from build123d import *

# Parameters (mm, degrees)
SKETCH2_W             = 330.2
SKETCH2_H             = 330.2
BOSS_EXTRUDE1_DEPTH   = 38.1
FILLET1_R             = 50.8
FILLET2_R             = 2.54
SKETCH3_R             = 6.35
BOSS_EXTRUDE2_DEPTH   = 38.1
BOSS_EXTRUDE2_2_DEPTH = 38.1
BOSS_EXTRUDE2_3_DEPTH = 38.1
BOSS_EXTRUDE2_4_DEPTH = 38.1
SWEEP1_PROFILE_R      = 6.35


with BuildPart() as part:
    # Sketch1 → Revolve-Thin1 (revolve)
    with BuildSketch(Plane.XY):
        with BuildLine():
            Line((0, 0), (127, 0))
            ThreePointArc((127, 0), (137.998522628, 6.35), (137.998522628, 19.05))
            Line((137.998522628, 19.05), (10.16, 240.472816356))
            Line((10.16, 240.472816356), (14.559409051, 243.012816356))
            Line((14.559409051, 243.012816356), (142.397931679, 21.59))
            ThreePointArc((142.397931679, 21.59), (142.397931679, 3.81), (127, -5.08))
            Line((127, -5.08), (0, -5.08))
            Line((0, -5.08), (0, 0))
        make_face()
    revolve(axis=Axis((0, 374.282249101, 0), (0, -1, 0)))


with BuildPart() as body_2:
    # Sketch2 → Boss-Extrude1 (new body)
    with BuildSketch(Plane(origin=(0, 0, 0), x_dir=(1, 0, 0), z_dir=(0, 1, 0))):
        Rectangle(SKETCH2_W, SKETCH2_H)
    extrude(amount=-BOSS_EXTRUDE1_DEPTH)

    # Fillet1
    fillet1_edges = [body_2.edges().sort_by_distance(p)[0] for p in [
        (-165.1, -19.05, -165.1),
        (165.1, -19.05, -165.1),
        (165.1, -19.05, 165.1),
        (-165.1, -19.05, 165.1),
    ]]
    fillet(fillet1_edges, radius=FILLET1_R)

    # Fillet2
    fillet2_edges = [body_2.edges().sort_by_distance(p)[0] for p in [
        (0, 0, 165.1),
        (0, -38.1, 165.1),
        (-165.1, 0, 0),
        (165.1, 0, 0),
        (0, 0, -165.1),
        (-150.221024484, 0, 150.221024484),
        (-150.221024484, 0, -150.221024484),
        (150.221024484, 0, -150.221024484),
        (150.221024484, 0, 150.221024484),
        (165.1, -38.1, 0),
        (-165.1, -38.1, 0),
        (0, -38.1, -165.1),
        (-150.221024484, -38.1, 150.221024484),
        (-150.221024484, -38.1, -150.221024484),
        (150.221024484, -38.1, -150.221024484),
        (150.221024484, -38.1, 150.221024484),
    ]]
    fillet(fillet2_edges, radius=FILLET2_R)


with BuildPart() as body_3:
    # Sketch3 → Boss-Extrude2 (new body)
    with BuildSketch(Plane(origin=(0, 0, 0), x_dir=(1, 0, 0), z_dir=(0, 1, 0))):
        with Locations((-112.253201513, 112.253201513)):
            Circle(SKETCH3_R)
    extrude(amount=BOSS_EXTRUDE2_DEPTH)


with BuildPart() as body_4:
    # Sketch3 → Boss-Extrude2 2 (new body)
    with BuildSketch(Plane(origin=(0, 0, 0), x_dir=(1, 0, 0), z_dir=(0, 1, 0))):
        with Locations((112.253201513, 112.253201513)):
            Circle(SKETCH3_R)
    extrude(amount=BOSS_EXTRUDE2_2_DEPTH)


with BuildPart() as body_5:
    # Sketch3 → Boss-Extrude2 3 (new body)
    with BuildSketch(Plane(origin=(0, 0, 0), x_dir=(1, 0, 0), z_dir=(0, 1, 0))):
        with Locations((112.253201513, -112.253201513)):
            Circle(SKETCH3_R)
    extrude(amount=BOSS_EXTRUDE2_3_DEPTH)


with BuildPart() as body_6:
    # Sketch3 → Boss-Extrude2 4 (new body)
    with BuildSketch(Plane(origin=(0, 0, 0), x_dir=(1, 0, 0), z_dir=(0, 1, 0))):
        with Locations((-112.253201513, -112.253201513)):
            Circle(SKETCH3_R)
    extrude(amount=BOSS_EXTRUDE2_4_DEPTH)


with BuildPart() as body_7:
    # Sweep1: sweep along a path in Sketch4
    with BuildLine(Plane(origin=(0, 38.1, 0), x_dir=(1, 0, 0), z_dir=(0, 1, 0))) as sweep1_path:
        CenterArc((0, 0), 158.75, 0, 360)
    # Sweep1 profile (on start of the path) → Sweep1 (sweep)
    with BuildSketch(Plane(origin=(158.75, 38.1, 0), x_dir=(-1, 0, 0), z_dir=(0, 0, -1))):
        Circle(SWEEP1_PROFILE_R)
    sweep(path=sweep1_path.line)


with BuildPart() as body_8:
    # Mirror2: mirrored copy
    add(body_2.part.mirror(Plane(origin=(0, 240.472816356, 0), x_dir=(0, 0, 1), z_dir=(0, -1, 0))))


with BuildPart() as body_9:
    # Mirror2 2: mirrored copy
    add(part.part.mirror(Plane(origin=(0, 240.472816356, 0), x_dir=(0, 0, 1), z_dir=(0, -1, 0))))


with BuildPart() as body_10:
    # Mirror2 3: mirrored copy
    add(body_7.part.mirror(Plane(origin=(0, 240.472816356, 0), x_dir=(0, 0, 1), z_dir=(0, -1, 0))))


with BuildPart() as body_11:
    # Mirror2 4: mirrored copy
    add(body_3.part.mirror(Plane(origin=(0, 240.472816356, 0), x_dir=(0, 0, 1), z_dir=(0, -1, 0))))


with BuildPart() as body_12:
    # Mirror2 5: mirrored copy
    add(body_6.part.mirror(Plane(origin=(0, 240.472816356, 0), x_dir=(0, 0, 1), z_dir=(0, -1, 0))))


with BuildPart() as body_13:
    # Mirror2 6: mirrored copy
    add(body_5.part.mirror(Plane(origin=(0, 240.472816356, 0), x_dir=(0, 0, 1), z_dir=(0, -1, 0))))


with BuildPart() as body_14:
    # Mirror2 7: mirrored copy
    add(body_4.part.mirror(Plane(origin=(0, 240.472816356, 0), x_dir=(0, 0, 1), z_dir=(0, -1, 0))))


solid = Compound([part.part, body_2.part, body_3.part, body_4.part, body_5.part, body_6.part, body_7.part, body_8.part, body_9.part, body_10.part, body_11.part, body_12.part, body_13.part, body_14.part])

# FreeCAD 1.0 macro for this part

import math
import FreeCAD as App
import Part
import Sketcher
from FreeCAD import Vector
Q = App.Units.Quantity


def edges_at(feature, points):
    """Names of the edges that pass closest to the given points."""
    edges = feature.Shape.Edges
    near = lambda p: min(range(len(edges)), key=lambda i: edges[i].distToShape(Part.Vertex(*p))[0])
    return sorted({f"Edge{near(p) + 1}" for p in points})

doc = App.newDocument("Part")
body = doc.addObject("PartDesign::Body", "Body")

# Sketch on XY plane
sketch1 = doc.addObject("Sketcher::SketchObject", "Sketch")
body.addObject(sketch1)
sketch1.AttachmentSupport = (doc.XY_Plane, [""])
sketch1.MapMode = "FlatFace"
sketch1.addGeometry(Part.LineSegment(Vector(127, 0, 0), Vector(0, 0, 0)), False)
sketch1.addGeometry(Part.LineSegment(Vector(0, 0, 0), Vector(0, -5.08, 0)), False)
sketch1.addGeometry(Part.LineSegment(Vector(0, -5.08, 0), Vector(127, -5.08, 0)), False)
sketch1.addGeometry(Part.ArcOfCircle(Part.Circle(Vector(127, 12.7, 0), Vector(0, 0, 1), 17.78), math.radians(-90), math.radians(30)), False)
sketch1.addGeometry(Part.LineSegment(Vector(142.397932, 21.59, 0), Vector(14.559409, 243.012816, 0)), False)
sketch1.addGeometry(Part.LineSegment(Vector(14.559409, 243.012816, 0), Vector(10.16, 240.472816, 0)), False)
sketch1.addGeometry(Part.LineSegment(Vector(10.16, 240.472816, 0), Vector(137.998523, 19.05, 0)), False)
sketch1.addGeometry(Part.ArcOfCircle(Part.Circle(Vector(127, 12.7, 0), Vector(0, 0, 1), 12.7), math.radians(-90), math.radians(30)), False)
sketch1.addConstraint(Sketcher.Constraint("Coincident", 0, 2, 1, 1))
sketch1.addConstraint(Sketcher.Constraint("Coincident", 1, 2, 2, 1))
sketch1.addConstraint(Sketcher.Constraint("Tangent", 2, 2, 3, 1))
sketch1.addConstraint(Sketcher.Constraint("Tangent", 3, 2, 4, 1))
sketch1.addConstraint(Sketcher.Constraint("Coincident", 4, 2, 5, 1))
sketch1.addConstraint(Sketcher.Constraint("Coincident", 5, 2, 6, 1))
sketch1.addConstraint(Sketcher.Constraint("Tangent", 6, 2, 7, 2))
sketch1.addConstraint(Sketcher.Constraint("Tangent", 7, 1, 0, 1))
sketch1.addConstraint(Sketcher.Constraint("Horizontal", 0))
sketch1.addConstraint(Sketcher.Constraint("Vertical", 1))
sketch1.addConstraint(Sketcher.Constraint("Horizontal", 2))
sketch1.addConstraint(Sketcher.Constraint("Coincident", 0, 2, -1, 1))
sketch1.addConstraint(Sketcher.Constraint("Coincident", 7, 3, 3, 3))
sketch1.addConstraint(Sketcher.Constraint("Perpendicular", 4, 5))
sketch1.addConstraint(Sketcher.Constraint("Perpendicular", 5, 6))
sketch1.addConstraint(Sketcher.Constraint("Radius", 3, Q("0.7 in")))
sketch1.addConstraint(Sketcher.Constraint("Radius", 7, Q("0.5 in")))
sketch1.addConstraint(Sketcher.Constraint("DistanceX", 0, 2, 0, 1, Q("5 in")))
sketch1.addConstraint(Sketcher.Constraint("Angle", 4, Q("120 deg")))
sketch1.addConstraint(Sketcher.Constraint("DistanceX", -1, 1, 5, 2, Q("0.4 in")))
revolution = doc.addObject("PartDesign::Revolution", "Revolution")
body.addObject(revolution)
revolution.Profile = sketch1
revolution.ReferenceAxis = (sketch1, ["V_Axis"])
revolution.Angle = 360
body2 = doc.addObject("PartDesign::Body", "Body001")

# Sketch on XZ plane
sketch2 = doc.addObject("Sketcher::SketchObject", "Sketch001")
body2.addObject(sketch2)
sketch2.AttachmentSupport = (doc.getObject("XZ_Plane001"), [""])
sketch2.MapMode = "FlatFace"
sketch2.addGeometry(Part.LineSegment(Vector(-165.1, -165.1, 0), Vector(-165.1, 165.1, 0)), False)
sketch2.addGeometry(Part.LineSegment(Vector(-165.1, 165.1, 0), Vector(165.1, 165.1, 0)), False)
sketch2.addGeometry(Part.LineSegment(Vector(165.1, 165.1, 0), Vector(165.1, -165.1, 0)), False)
sketch2.addGeometry(Part.LineSegment(Vector(165.1, -165.1, 0), Vector(-165.1, -165.1, 0)), False)
sketch2.addConstraint(Sketcher.Constraint("Coincident", 0, 2, 1, 1))
sketch2.addConstraint(Sketcher.Constraint("Coincident", 1, 2, 2, 1))
sketch2.addConstraint(Sketcher.Constraint("Coincident", 2, 2, 3, 1))
sketch2.addConstraint(Sketcher.Constraint("Coincident", 3, 2, 0, 1))
sketch2.addConstraint(Sketcher.Constraint("Vertical", 0))
sketch2.addConstraint(Sketcher.Constraint("Horizontal", 1))
sketch2.addConstraint(Sketcher.Constraint("Vertical", 2))
sketch2.addConstraint(Sketcher.Constraint("Horizontal", 3))
sketch2.addConstraint(Sketcher.Constraint("Symmetric", 0, 2, 2, 2, -1, 1))
sketch2.addConstraint(Sketcher.Constraint("Equal", 3, 0))
sketch2.addConstraint(Sketcher.Constraint("DistanceX", 1, 1, 1, 2, Q("13 in")))
pad1 = doc.addObject("PartDesign::Pad", "Pad")
body2.addObject(pad1)
pad1.Profile = sketch2
pad1.Length = Q("1.5 in")
doc.recompute()

fillet = doc.addObject("PartDesign::Fillet", "Fillet")
body2.addObject(fillet)
fillet.Base = (pad1, edges_at(pad1, [
    (-165.1, -19.05, -165.1),
    (165.1, -19.05, -165.1),
    (165.1, -19.05, 165.1),
    (-165.1, -19.05, 165.1),
]))
fillet.Radius = Q("2 in")
doc.recompute()

fillet2 = doc.addObject("PartDesign::Fillet", "Fillet001")
body2.addObject(fillet2)
fillet2.Base = (fillet, edges_at(fillet, [
    (0, 0, 165.1),
    (0, -38.1, 165.1),
    (-165.1, 0, 0),
    (165.1, 0, 0),
    (0, 0, -165.1),
    (-150.221, 0, 150.221),
    (-150.221, 0, -150.221),
    (150.221, 0, -150.221),
    (150.221, 0, 150.221),
    (165.1, -38.1, 0),
    (-165.1, -38.1, 0),
    (0, -38.1, -165.1),
    (-150.221, -38.1, 150.221),
    (-150.221, -38.1, -150.221),
    (150.221, -38.1, -150.221),
    (150.221, -38.1, 150.221),
]))
fillet2.Radius = Q("0.1 in")
body3 = doc.addObject("PartDesign::Body", "Body002")

# Sketch on XZ plane
sketch3 = doc.addObject("Sketcher::SketchObject", "Sketch002")
body3.addObject(sketch3)
sketch3.AttachmentSupport = (doc.getObject("XZ_Plane002"), [""])
sketch3.MapMode = "FlatFace"
sketch3.addGeometry(Part.Circle(Vector(-112.253202, -112.253202, 0), Vector(0, 0, 1), 6.35), False)
sketch3.addConstraint(Sketcher.Constraint("Diameter", 0, Q("0.5 in")))
sketch3.addConstraint(Sketcher.Constraint("DistanceX", 0, 3, -1, 1, 112.253202))
sketch3.addConstraint(Sketcher.Constraint("DistanceY", 0, 3, -1, 1, 112.253202))
pad2 = doc.addObject("PartDesign::Pad", "Pad001")
body3.addObject(pad2)
pad2.Profile = sketch3
pad2.Length = Q("1.5 in")
pad2.Reversed = True
body4 = doc.addObject("PartDesign::Body", "Body003")

# Sketch on XZ plane
sketch4 = doc.addObject("Sketcher::SketchObject", "Sketch003")
body4.addObject(sketch4)
sketch4.AttachmentSupport = (doc.getObject("XZ_Plane003"), [""])
sketch4.MapMode = "FlatFace"
sketch4.addGeometry(Part.Circle(Vector(112.253202, -112.253202, 0), Vector(0, 0, 1), 6.35), False)
sketch4.addConstraint(Sketcher.Constraint("Diameter", 0, Q("0.5 in")))
sketch4.addConstraint(Sketcher.Constraint("DistanceX", -1, 1, 0, 3, 112.253202))
sketch4.addConstraint(Sketcher.Constraint("DistanceY", 0, 3, -1, 1, 112.253202))
pad3 = doc.addObject("PartDesign::Pad", "Pad002")
body4.addObject(pad3)
pad3.Profile = sketch4
pad3.Length = Q("1.5 in")
pad3.Reversed = True
body5 = doc.addObject("PartDesign::Body", "Body004")

# Sketch on XZ plane
sketch5 = doc.addObject("Sketcher::SketchObject", "Sketch004")
body5.addObject(sketch5)
sketch5.AttachmentSupport = (doc.getObject("XZ_Plane004"), [""])
sketch5.MapMode = "FlatFace"
sketch5.addGeometry(Part.Circle(Vector(112.253202, 112.253202, 0), Vector(0, 0, 1), 6.35), False)
sketch5.addConstraint(Sketcher.Constraint("Diameter", 0, Q("0.5 in")))
sketch5.addConstraint(Sketcher.Constraint("DistanceX", -1, 1, 0, 3, 112.253202))
sketch5.addConstraint(Sketcher.Constraint("DistanceY", -1, 1, 0, 3, 112.253202))
pad4 = doc.addObject("PartDesign::Pad", "Pad003")
body5.addObject(pad4)
pad4.Profile = sketch5
pad4.Length = Q("1.5 in")
pad4.Reversed = True
body6 = doc.addObject("PartDesign::Body", "Body005")

# Sketch on XZ plane
sketch6 = doc.addObject("Sketcher::SketchObject", "Sketch005")
body6.addObject(sketch6)
sketch6.AttachmentSupport = (doc.getObject("XZ_Plane005"), [""])
sketch6.MapMode = "FlatFace"
sketch6.addGeometry(Part.Circle(Vector(-112.253202, 112.253202, 0), Vector(0, 0, 1), 6.35), False)
sketch6.addConstraint(Sketcher.Constraint("Diameter", 0, Q("0.5 in")))
sketch6.addConstraint(Sketcher.Constraint("DistanceX", 0, 3, -1, 1, 112.253202))
sketch6.addConstraint(Sketcher.Constraint("DistanceY", -1, 1, 0, 3, 112.253202))
pad5 = doc.addObject("PartDesign::Pad", "Pad004")
body6.addObject(pad5)
pad5.Profile = sketch6
pad5.Length = Q("1.5 in")
pad5.Reversed = True
body7 = doc.addObject("PartDesign::Body", "Body006")

# Sketch on XY plane
sketch7 = doc.addObject("Sketcher::SketchObject", "Sketch006")
body7.addObject(sketch7)
sketch7.AttachmentSupport = (doc.getObject("XY_Plane006"), [""])
sketch7.MapMode = "FlatFace"
sketch7.addGeometry(Part.Circle(Vector(158.75, 38.1, 0), Vector(0, 0, 1), 6.35), False)
sketch7.addConstraint(Sketcher.Constraint("Diameter", 0, Q("0.5 in")))
sketch7.addConstraint(Sketcher.Constraint("DistanceY", -1, 1, 0, 3, Q("1.5 in")))
sketch7.addConstraint(Sketcher.Constraint("DistanceX", -1, 1, 0, 3, Q("6.25 in")))

# Sketch on XZ plane
sketch8 = doc.addObject("Sketcher::SketchObject", "Sketch007")
body7.addObject(sketch8)
sketch8.AttachmentSupport = (doc.getObject("XZ_Plane006"), [""])
sketch8.MapMode = "FlatFace"
sketch8.AttachmentOffset = App.Placement(Vector(0, 0, -1.5 * 25.4), App.Rotation())
sketch8.addGeometry(Part.Circle(Vector(0, 0, 0), Vector(0, 0, 1), 158.75), False)
sketch8.addConstraint(Sketcher.Constraint("Coincident", 0, 3, -1, 1))
sketch8.addConstraint(Sketcher.Constraint("Diameter", 0, Q("12.5 in")))
doc.recompute()

additivepipe = doc.addObject("PartDesign::AdditivePipe", "AdditivePipe")
body7.addObject(additivepipe)
additivepipe.Profile = sketch7
additivepipe.Spine = (sketch8, ["Edge1"])
body8 = doc.addObject("PartDesign::Body", "Body007")
doc.recompute()

mirroring = doc.addObject("Part::Mirroring", "Mirroring")
mirroring.Source = body2
mirroring.Base = Vector(0, 240.472816, 0)
mirroring.Normal = Vector(0, -1, 0)
body8.BaseFeature = mirroring
doc.recompute()
body9 = doc.addObject("PartDesign::Body", "Body008")
doc.recompute()

mirroring2 = doc.addObject("Part::Mirroring", "Mirroring001")
mirroring2.Source = body
mirroring2.Base = Vector(0, 240.472816, 0)
mirroring2.Normal = Vector(0, -1, 0)
body9.BaseFeature = mirroring2
doc.recompute()
body10 = doc.addObject("PartDesign::Body", "Body009")
doc.recompute()

mirroring3 = doc.addObject("Part::Mirroring", "Mirroring002")
mirroring3.Source = body7
mirroring3.Base = Vector(0, 240.472816, 0)
mirroring3.Normal = Vector(0, -1, 0)
body10.BaseFeature = mirroring3
doc.recompute()
body11 = doc.addObject("PartDesign::Body", "Body010")
doc.recompute()

mirroring4 = doc.addObject("Part::Mirroring", "Mirroring003")
mirroring4.Source = body3
mirroring4.Base = Vector(0, 240.472816, 0)
mirroring4.Normal = Vector(0, -1, 0)
body11.BaseFeature = mirroring4
doc.recompute()
body12 = doc.addObject("PartDesign::Body", "Body011")
doc.recompute()

mirroring5 = doc.addObject("Part::Mirroring", "Mirroring004")
mirroring5.Source = body6
mirroring5.Base = Vector(0, 240.472816, 0)
mirroring5.Normal = Vector(0, -1, 0)
body12.BaseFeature = mirroring5
doc.recompute()
body13 = doc.addObject("PartDesign::Body", "Body012")
doc.recompute()

mirroring6 = doc.addObject("Part::Mirroring", "Mirroring005")
mirroring6.Source = body5
mirroring6.Base = Vector(0, 240.472816, 0)
mirroring6.Normal = Vector(0, -1, 0)
body13.BaseFeature = mirroring6
doc.recompute()
body14 = doc.addObject("PartDesign::Body", "Body013")
doc.recompute()

mirroring7 = doc.addObject("Part::Mirroring", "Mirroring006")
mirroring7.Source = body4
mirroring7.Base = Vector(0, 240.472816, 0)
mirroring7.Normal = Vector(0, -1, 0)
body14.BaseFeature = mirroring7
doc.recompute()
mirroring.Visibility = False
mirroring2.Visibility = False
mirroring3.Visibility = False
mirroring4.Visibility = False
mirroring5.Visibility = False
mirroring6.Visibility = False
mirroring7.Visibility = False

doc.recompute()
